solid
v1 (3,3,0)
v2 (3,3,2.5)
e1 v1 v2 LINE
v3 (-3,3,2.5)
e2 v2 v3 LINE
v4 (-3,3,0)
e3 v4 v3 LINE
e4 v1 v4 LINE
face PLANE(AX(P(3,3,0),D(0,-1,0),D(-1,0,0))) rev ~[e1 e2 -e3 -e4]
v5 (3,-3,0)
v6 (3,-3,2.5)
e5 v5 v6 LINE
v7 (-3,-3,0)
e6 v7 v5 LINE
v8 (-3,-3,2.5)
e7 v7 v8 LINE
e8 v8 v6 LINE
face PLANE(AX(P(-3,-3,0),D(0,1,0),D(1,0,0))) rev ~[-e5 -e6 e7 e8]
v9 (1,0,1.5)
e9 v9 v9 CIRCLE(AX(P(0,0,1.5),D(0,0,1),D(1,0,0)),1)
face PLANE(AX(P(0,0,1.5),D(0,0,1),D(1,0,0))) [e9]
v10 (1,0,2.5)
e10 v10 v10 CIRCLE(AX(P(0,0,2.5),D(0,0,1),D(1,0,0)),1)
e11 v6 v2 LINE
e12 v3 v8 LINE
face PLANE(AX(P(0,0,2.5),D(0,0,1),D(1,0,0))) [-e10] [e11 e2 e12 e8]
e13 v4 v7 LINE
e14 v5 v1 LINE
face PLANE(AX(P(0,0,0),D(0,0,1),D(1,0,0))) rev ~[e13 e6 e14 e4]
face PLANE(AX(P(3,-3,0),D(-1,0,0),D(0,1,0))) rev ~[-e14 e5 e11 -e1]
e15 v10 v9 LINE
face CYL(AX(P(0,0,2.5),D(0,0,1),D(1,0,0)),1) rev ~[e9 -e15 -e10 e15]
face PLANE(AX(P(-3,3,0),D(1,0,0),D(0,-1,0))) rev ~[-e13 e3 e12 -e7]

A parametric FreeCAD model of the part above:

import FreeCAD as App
import Part
import Sketcher

V = App.Vector


def add_polygon(sketch, points):
    """Adds a closed chain of lines whose ends are joined by coincident constraints."""
    first, n = sketch.GeometryCount, len(points)
    for a, b in zip(points, points[1:] + points[:1]):
        sketch.addGeometry(Part.LineSegment(App.Vector(*a, 0), App.Vector(*b, 0)), False)
    for i in range(n):
        sketch.addConstraint(Sketcher.Constraint("Coincident", first + i, 2, first + (i + 1) % n, 1))

doc = App.newDocument("Part")
body = doc.addObject("PartDesign::Body", "Body")

# Sketch on XY plane
sketch1 = body.newObject("Sketcher::SketchObject", "Sketch")
sketch1.AttachmentSupport = (doc.getObject("XY_Plane"), [""])
sketch1.MapMode = "FlatFace"
add_polygon(sketch1, [(-3, 3), (-3, -3), (3, -3), (3, 3)])  # lines 0-3
sketch1.addConstraint(Sketcher.Constraint("Vertical", 0))
sketch1.addConstraint(Sketcher.Constraint("Horizontal", 1))
sketch1.addConstraint(Sketcher.Constraint("Vertical", 2))
sketch1.addConstraint(Sketcher.Constraint("Horizontal", 3))
sketch1.addConstraint(Sketcher.Constraint("Symmetric", 0, 2, 2, 2, -1, 1))
sketch1.addConstraint(Sketcher.Constraint("Equal", 3, 0))
sketch1.addConstraint(Sketcher.Constraint("DistanceX", 1, 1, 1, 2, 6.0))
pad1 = body.newObject("PartDesign::Pad", "Pad")
pad1.Profile = sketch1
pad1.Length = 2.5

# Sketch on XY plane
sketch2 = body.newObject("Sketcher::SketchObject", "Sketch001")
sketch2.AttachmentSupport = (doc.getObject("XY_Plane"), [""])
sketch2.MapMode = "FlatFace"
sketch2.AttachmentOffset = App.Placement(V(0, 0, 2.5), App.Rotation())
sketch2.addGeometry(Part.Circle(V(0, 0, 0), V(0, 0, 1), 1), False)
sketch2.addConstraint(Sketcher.Constraint("Coincident", 0, 3, -1, 1))
sketch2.addConstraint(Sketcher.Constraint("Diameter", 0, 2.0))
pocket1 = body.newObject("PartDesign::Pocket", "Pocket")
pocket1.Profile = sketch2
pocket1.Length = 1

doc.recompute()
